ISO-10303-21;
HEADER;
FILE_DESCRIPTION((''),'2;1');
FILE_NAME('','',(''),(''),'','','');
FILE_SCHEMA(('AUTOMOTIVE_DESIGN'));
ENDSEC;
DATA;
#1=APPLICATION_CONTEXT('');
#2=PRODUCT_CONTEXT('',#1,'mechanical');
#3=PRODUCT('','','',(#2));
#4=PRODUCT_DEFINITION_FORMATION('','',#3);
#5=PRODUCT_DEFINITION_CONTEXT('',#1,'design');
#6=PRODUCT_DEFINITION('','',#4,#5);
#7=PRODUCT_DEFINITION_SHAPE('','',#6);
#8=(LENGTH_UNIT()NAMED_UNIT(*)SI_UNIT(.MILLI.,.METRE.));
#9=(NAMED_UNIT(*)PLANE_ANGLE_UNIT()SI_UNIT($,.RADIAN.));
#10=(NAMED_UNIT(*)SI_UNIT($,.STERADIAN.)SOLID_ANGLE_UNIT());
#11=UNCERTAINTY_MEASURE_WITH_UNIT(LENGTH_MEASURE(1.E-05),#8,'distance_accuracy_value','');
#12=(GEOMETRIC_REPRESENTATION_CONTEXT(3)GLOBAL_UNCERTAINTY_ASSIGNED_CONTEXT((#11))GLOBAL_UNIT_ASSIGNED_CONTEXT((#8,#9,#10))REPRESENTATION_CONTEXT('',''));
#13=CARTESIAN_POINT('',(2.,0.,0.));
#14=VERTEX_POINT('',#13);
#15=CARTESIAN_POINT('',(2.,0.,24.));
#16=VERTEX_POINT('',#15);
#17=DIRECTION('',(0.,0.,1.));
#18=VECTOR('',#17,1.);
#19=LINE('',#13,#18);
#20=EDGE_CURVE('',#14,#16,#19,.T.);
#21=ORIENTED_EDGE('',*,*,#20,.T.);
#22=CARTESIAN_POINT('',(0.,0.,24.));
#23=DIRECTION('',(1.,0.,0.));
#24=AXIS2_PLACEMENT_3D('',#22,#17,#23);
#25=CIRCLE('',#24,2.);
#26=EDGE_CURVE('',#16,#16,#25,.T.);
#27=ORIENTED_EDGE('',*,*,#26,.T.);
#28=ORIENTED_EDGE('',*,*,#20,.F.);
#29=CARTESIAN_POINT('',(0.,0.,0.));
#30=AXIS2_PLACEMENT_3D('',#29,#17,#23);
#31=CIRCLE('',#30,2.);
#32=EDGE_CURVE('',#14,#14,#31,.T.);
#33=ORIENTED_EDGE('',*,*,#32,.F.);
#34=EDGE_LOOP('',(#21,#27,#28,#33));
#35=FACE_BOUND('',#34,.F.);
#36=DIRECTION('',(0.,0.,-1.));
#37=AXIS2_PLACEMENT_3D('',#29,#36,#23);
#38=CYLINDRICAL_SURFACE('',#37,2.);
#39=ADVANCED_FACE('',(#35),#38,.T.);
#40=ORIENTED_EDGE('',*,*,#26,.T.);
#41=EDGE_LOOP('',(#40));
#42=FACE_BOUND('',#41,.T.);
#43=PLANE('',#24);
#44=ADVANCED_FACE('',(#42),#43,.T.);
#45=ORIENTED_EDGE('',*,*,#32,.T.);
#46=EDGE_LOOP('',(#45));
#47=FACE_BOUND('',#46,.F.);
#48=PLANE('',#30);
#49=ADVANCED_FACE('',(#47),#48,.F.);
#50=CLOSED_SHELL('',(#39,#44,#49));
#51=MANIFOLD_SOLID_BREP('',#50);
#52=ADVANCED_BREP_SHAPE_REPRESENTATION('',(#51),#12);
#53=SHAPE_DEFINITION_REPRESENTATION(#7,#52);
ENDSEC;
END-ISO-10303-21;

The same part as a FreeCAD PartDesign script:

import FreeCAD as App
import Part
import Sketcher

V = App.Vector
Q = App.Units.Quantity

doc = App.newDocument("Part")
body = doc.addObject("PartDesign::Body", "Body")

# Sketch on XY plane
sketch1 = body.newObject("Sketcher::SketchObject", "Sketch")
sketch1.AttachmentSupport = (doc.getObject("XY_Plane"), [""])
sketch1.MapMode = "FlatFace"
sketch1.addGeometry(Part.Circle(V(0, 0, 0), V(0, 0, 1), 2), False)
sketch1.addConstraint([
    Sketcher.Constraint("Coincident", 0, 3, -1, 1),
    Sketcher.Constraint("Diameter", 0, Q("4 mm")),
])
pad1 = body.newObject("PartDesign::Pad", "Pad")
pad1.Profile = sketch1
pad1.Length = 24

doc.recompute()
